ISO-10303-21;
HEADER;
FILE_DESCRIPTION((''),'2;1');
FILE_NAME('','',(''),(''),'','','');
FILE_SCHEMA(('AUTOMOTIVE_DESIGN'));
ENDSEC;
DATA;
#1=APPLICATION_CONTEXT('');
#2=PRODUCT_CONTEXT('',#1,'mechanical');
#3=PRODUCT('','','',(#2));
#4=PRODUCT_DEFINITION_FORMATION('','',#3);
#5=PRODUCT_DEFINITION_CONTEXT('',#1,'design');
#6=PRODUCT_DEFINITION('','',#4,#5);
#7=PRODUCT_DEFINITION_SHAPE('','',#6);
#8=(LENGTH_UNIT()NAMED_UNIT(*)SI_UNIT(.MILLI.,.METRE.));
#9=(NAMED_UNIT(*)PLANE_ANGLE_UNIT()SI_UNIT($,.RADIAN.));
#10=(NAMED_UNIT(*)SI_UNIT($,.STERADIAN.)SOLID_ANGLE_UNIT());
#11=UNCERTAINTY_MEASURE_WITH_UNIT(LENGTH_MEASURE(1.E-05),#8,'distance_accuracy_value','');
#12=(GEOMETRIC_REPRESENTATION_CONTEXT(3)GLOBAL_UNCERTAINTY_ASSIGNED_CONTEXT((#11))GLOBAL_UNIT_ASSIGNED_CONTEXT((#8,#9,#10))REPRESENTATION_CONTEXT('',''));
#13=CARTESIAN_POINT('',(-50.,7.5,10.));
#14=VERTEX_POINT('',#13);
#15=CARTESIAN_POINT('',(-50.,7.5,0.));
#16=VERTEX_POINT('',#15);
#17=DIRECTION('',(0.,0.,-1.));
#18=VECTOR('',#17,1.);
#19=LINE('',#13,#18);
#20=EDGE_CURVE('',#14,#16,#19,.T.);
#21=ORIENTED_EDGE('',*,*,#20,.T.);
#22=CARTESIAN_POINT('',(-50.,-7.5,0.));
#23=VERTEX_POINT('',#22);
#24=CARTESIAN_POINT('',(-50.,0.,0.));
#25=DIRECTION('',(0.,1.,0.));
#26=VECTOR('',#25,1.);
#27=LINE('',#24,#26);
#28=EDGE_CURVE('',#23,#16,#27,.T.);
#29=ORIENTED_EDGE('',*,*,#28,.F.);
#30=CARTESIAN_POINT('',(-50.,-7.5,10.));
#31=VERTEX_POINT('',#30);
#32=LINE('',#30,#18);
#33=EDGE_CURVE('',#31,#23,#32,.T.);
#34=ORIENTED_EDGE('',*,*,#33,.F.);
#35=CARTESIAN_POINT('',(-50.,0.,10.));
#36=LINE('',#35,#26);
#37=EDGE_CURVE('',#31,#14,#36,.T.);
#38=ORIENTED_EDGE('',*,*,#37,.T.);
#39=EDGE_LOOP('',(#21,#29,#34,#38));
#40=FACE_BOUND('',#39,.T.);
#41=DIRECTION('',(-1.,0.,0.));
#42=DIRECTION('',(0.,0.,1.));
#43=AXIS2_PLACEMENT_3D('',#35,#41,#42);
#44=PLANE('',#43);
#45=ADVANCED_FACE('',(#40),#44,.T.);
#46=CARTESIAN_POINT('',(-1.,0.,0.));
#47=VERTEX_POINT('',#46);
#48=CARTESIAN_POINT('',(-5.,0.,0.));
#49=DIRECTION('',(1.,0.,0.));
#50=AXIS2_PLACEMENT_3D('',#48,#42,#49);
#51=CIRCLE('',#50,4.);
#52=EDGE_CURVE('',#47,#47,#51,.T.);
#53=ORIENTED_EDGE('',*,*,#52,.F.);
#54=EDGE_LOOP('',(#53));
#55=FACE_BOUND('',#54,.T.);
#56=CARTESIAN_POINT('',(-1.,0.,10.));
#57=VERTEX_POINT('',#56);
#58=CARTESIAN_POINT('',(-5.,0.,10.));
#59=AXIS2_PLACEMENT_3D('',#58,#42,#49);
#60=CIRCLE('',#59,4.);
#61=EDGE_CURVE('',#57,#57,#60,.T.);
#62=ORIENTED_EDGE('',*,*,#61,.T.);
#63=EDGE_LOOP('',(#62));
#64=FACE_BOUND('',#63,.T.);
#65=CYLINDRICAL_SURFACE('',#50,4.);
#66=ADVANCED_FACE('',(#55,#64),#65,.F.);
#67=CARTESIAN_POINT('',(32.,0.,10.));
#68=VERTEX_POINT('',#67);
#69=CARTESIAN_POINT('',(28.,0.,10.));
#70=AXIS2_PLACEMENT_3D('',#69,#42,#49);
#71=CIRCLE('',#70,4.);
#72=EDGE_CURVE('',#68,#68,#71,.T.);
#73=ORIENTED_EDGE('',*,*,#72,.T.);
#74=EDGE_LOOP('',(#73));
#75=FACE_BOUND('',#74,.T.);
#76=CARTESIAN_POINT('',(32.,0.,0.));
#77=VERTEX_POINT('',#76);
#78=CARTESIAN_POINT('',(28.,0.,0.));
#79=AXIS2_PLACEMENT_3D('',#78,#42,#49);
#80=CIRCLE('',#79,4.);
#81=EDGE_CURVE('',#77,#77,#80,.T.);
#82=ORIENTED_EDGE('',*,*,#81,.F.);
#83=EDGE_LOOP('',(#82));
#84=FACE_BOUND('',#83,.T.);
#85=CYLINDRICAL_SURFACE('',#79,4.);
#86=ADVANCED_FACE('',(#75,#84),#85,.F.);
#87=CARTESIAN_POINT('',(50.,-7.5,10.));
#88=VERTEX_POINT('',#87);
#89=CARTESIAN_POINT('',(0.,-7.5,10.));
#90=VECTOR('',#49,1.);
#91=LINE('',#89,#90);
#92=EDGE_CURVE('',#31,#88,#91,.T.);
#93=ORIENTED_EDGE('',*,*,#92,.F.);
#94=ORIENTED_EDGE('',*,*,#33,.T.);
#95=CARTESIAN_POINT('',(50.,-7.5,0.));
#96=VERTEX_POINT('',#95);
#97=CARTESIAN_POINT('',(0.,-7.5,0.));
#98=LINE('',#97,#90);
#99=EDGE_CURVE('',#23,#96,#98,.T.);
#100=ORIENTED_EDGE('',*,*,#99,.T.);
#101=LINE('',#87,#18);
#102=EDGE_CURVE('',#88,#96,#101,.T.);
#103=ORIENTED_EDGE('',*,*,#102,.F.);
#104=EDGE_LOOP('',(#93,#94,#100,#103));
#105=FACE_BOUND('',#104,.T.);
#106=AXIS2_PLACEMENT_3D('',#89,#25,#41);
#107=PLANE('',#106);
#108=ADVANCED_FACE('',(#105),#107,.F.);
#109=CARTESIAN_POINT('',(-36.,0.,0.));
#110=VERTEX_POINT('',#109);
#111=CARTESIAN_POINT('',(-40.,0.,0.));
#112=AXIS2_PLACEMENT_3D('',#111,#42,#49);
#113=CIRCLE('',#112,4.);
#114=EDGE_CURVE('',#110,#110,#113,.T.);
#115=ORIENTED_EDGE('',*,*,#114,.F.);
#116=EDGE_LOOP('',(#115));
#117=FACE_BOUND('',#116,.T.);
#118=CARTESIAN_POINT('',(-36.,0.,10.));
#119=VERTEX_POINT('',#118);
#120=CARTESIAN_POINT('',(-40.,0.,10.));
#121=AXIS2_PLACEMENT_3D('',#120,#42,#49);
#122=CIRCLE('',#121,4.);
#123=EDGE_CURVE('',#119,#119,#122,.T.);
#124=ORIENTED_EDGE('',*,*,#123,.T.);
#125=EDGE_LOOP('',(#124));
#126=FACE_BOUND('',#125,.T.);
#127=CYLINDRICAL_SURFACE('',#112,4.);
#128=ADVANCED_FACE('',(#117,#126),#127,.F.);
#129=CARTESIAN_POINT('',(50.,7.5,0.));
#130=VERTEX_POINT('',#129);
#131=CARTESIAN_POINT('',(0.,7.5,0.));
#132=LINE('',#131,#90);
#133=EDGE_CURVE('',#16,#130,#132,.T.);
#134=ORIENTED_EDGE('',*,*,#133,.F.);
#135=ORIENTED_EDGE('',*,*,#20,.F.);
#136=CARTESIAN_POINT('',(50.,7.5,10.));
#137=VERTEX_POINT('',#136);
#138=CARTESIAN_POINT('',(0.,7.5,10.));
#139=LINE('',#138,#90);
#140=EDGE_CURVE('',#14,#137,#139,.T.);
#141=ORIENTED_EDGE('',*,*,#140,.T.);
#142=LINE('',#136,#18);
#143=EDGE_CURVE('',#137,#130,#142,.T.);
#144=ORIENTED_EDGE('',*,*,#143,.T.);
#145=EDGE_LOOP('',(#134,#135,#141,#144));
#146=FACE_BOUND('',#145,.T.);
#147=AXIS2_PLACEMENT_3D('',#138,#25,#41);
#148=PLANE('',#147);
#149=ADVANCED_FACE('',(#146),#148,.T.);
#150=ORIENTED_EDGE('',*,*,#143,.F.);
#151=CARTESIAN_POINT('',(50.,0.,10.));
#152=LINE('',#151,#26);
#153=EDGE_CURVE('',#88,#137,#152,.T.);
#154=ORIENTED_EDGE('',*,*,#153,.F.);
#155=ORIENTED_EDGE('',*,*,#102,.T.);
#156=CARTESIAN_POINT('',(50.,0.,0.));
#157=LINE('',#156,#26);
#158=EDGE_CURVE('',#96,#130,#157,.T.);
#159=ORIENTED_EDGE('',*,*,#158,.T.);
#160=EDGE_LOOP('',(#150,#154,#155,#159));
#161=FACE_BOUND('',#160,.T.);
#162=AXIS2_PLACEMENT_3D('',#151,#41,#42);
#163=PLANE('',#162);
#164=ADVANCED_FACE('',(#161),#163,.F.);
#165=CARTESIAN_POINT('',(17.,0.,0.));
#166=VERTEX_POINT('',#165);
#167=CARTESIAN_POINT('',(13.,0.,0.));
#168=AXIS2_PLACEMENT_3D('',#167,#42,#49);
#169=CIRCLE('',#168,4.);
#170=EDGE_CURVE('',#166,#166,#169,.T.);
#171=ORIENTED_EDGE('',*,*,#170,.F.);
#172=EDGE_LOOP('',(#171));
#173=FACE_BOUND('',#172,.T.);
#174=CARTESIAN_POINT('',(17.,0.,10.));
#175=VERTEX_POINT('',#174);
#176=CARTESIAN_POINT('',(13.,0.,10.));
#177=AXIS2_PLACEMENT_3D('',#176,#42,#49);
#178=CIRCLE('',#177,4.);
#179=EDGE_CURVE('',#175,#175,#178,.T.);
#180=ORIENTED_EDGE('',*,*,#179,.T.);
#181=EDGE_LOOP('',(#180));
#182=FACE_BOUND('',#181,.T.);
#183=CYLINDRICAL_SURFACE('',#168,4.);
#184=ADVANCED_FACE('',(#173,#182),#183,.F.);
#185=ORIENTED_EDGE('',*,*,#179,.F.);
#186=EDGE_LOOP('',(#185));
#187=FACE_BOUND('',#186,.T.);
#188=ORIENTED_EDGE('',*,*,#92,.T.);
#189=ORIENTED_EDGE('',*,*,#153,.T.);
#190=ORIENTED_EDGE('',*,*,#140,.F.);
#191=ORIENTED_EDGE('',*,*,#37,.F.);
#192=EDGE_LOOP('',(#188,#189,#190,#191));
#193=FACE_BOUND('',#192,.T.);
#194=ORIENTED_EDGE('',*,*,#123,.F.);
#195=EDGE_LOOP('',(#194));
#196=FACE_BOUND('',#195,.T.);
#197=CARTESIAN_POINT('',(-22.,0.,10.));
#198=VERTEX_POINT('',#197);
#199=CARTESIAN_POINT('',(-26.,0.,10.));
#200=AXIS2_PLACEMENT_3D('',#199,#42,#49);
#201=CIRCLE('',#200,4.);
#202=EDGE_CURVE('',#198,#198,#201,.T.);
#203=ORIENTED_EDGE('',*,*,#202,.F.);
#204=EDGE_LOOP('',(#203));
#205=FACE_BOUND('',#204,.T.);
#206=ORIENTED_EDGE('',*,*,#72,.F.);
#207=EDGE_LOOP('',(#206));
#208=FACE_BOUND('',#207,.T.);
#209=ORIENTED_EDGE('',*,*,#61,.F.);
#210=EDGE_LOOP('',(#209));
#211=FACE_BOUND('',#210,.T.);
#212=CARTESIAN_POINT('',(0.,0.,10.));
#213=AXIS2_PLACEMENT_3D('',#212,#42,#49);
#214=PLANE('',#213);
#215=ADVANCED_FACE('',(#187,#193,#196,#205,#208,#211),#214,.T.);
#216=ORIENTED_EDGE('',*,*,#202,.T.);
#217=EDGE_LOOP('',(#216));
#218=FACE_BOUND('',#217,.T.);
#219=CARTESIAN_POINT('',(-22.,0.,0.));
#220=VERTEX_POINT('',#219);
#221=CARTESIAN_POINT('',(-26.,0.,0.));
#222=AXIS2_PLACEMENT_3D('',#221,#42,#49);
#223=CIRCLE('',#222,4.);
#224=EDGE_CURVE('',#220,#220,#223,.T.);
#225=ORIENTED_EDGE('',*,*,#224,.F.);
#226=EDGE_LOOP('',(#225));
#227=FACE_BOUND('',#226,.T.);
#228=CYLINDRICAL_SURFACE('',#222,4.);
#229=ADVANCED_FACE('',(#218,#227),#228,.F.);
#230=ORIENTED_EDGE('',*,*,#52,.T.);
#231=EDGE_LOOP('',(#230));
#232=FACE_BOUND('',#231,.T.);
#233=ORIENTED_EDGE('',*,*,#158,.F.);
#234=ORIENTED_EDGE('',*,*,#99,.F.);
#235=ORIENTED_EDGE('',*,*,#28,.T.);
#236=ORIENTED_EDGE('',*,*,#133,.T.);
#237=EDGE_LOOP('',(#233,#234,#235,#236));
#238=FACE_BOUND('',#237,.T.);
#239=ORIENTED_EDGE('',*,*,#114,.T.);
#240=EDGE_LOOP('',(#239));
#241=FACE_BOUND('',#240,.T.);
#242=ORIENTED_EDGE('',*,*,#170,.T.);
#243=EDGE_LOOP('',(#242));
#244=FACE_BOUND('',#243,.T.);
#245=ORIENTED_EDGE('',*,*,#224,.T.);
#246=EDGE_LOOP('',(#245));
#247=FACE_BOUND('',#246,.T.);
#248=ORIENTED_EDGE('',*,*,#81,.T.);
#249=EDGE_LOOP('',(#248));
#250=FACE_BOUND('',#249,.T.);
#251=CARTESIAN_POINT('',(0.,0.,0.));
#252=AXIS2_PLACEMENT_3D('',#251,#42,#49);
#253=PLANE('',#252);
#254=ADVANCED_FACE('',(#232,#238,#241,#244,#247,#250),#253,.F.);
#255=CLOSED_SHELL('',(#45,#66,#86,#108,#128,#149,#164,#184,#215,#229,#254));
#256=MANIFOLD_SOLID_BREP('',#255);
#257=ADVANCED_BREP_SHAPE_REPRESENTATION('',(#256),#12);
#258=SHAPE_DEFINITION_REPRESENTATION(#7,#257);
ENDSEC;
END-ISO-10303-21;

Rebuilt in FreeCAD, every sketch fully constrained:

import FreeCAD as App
import Part
import Sketcher

V = App.Vector
Q = App.Units.Quantity

doc = App.newDocument("Part")
params = doc.addObject("Spreadsheet::Sheet", "Params")
for row, (alias, value) in enumerate([
    ("sketch1_width", "100 mm"),
    ("sketch1_height", "15 mm"),
    ("pad1_length", "10 mm"),
    ("sketch2_diameter", "8 mm"),
], start=1):
    params.set(f"A{row}", alias)
    params.set(f"B{row}", "=" + value)
    params.setAlias(f"B{row}", alias)

body = doc.addObject("PartDesign::Body", "Body")

sketch1 = doc.addObject("Sketcher::SketchObject", "Sketch")
body.addObject(sketch1)
sketch1.AttachmentSupport = (doc.XY_Plane, [""])
sketch1.MapMode = "FlatFace"
sketch1.addGeometry([
    Part.LineSegment(V(-50, 7.5, 0), V(-50, -7.5, 0)),
    Part.LineSegment(V(-50, -7.5, 0), V(50, -7.5, 0)),
    Part.LineSegment(V(50, -7.5, 0), V(50, 7.5, 0)),
    Part.LineSegment(V(50, 7.5, 0), V(-50, 7.5, 0)),
], False)
sketch1.addConstraint([
    Sketcher.Constraint("Coincident", 0, 2, 1, 1),
    Sketcher.Constraint("Coincident", 1, 2, 2, 1),
    Sketcher.Constraint("Coincident", 2, 2, 3, 1),
    Sketcher.Constraint("Coincident", 3, 2, 0, 1),
    Sketcher.Constraint("Vertical", 0),
    Sketcher.Constraint("Horizontal", 1),
    Sketcher.Constraint("Vertical", 2),
    Sketcher.Constraint("Horizontal", 3),
    Sketcher.Constraint("Symmetric", 0, 2, 2, 2, -1, 1),
    Sketcher.Constraint("DistanceX", 1, 1, 1, 2, Q("100 mm")),
    Sketcher.Constraint("DistanceY", 0, 2, 0, 1, Q("15 mm")),
])
sketch1.setExpression("Constraints[9]", "Params.sketch1_width")
sketch1.setExpression("Constraints[10]", "Params.sketch1_height")
pad1 = doc.addObject("PartDesign::Pad", "Pad")
body.addObject(pad1)
pad1.Profile = sketch1
pad1.setExpression("Length", "Params.pad1_length")

sketch2 = doc.addObject("Sketcher::SketchObject", "Sketch001")
body.addObject(sketch2)
sketch2.AttachmentSupport = (doc.XY_Plane, [""])
sketch2.MapMode = "FlatFace"
sketch2.AttachmentOffset = App.Placement(V(0, 0, 10), App.Rotation())
sketch2.addGeometry([
    Part.Circle(V(-40, 0, 0), V(0, 0, 1), 4),
    Part.Circle(V(-26, 0, 0), V(0, 0, 1), 4),
    Part.Circle(V(-5, 0, 0), V(0, 0, 1), 4),
    Part.Circle(V(13, 0, 0), V(0, 0, 1), 4),
    Part.Circle(V(28, 0, 0), V(0, 0, 1), 4),
], False)
sketch2.addConstraint([
    Sketcher.Constraint("Equal", 0, 1),
    Sketcher.Constraint("Equal", 1, 2),
    Sketcher.Constraint("Equal", 2, 3),
    Sketcher.Constraint("Equal", 3, 4),
    Sketcher.Constraint("PointOnObject", 0, 3, -1),
    Sketcher.Constraint("PointOnObject", 1, 3, -1),
    Sketcher.Constraint("PointOnObject", 2, 3, -1),
    Sketcher.Constraint("PointOnObject", 3, 3, -1),
    Sketcher.Constraint("PointOnObject", 4, 3, -1),
    Sketcher.Constraint("Diameter", 0, Q("8 mm")),
    Sketcher.Constraint("DistanceX", 0, 3, -1, 1, Q("40 mm")),
    Sketcher.Constraint("DistanceX", 1, 3, -1, 1, Q("26 mm")),
    Sketcher.Constraint("DistanceX", 2, 3, -1, 1, Q("5 mm")),
    Sketcher.Constraint("DistanceX", -1, 1, 3, 3, Q("13 mm")),
    Sketcher.Constraint("DistanceX", -1, 1, 4, 3, Q("28 mm")),
])
sketch2.setExpression("Constraints[9]", "Params.sketch2_diameter")
pocket1 = doc.addObject("PartDesign::Pocket", "Pocket")
body.addObject(pocket1)
pocket1.Profile = sketch2
pocket1.Type = "ThroughAll"

doc.recompute()
